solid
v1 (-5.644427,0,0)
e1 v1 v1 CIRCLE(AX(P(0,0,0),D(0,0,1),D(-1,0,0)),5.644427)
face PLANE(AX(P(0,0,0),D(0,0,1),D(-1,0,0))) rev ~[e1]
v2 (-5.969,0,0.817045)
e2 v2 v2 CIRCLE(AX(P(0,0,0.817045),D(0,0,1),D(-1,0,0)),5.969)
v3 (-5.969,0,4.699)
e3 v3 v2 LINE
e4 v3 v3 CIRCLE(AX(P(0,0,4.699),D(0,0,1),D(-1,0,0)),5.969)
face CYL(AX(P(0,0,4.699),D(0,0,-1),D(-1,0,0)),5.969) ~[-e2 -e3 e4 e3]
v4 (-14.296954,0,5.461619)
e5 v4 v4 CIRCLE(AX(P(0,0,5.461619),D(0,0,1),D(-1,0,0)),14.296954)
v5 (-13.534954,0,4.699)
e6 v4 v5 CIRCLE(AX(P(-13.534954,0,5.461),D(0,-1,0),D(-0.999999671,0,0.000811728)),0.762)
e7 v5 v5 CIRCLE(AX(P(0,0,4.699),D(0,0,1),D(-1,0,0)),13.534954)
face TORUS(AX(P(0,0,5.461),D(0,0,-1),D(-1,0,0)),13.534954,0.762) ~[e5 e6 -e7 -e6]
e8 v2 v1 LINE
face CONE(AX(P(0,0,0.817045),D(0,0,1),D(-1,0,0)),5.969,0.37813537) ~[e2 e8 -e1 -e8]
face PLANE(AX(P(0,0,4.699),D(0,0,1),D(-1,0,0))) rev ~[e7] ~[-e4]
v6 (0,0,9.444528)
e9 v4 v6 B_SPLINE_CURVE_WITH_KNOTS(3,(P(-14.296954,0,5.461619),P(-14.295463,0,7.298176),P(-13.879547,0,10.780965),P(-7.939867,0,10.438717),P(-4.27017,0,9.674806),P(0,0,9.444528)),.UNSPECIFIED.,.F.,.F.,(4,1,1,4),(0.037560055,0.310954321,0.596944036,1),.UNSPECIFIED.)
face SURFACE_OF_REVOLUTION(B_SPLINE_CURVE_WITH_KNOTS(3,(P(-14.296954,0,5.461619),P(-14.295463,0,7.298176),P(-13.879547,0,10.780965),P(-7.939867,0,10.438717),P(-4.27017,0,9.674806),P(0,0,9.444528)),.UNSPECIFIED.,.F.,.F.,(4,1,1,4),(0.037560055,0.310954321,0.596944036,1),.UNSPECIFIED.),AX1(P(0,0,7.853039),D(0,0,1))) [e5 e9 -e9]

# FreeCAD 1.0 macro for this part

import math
import FreeCAD as App
import Part
import Sketcher
from FreeCAD import Vector
Q = App.Units.Quantity

doc = App.newDocument("Part")
params = doc.addObject("Spreadsheet::Sheet", "Params")
for row, (alias, value) in enumerate([
    ("sketch1_radius", "0.03 in"),
    ("revolution_angle", "360 deg"),
], start=1):
    params.set(f"A{row}", alias)
    params.set(f"B{row}", "=" + value)
    params.setAlias(f"B{row}", alias)

body = doc.addObject("PartDesign::Body", "Body")

# Sketch on XZ plane
sketch1 = doc.addObject("Sketcher::SketchObject", "Sketch")
body.addObject(sketch1)
sketch1.AttachmentSupport = (doc.XZ_Plane, [""])
sketch1.MapMode = "FlatFace"
sketch1.addGeometry(Part.LineSegment(Vector(-5.644427, 0, 0), Vector(0, 0, 0)), False)
sketch1.addGeometry(Part.LineSegment(Vector(0, 0, 0), Vector(0, 9.444528, 0)), False)
sketch1.addGeometry(Part.BSplineCurve([Vector(-14.296954, 5.461619, 0), Vector(-14.295463, 7.298176, 0), Vector(-13.879547, 10.780965, 0), Vector(-7.939867, 10.438717, 0), Vector(-4.27017, 9.674806, 0), Vector(0, 9.444528, 0)], [4, 1, 1, 4], [0.037560055, 0.310954321, 0.596944036, 1], False, 3, [1, 1, 1, 1, 1, 1], False), False)
sketch1.addGeometry(Part.ArcOfCircle(Part.Circle(Vector(-13.534954, 5.461, 0), Vector(0, 0, 1), 0.762), math.radians(179.953491), math.radians(270)), False)
sketch1.addGeometry(Part.LineSegment(Vector(-13.534954, 4.699, 0), Vector(-5.969, 4.699, 0)), False)
sketch1.addGeometry(Part.LineSegment(Vector(-5.969, 4.699, 0), Vector(-5.969, 0.817045, 0)), False)
sketch1.addGeometry(Part.LineSegment(Vector(-5.969, 0.817045, 0), Vector(-5.644427, 0, 0)), False)
sketch1.addConstraint(Sketcher.Constraint("Block", 2))
sketch1.addConstraint(Sketcher.Constraint("Coincident", 0, 2, 1, 1))
sketch1.addConstraint(Sketcher.Constraint("Coincident", 1, 2, 2, 2))
sketch1.addConstraint(Sketcher.Constraint("Coincident", 2, 1, 3, 1))
sketch1.addConstraint(Sketcher.Constraint("Tangent", 3, 2, 4, 1))
sketch1.addConstraint(Sketcher.Constraint("Coincident", 4, 2, 5, 1))
sketch1.addConstraint(Sketcher.Constraint("Coincident", 5, 2, 6, 1))
sketch1.addConstraint(Sketcher.Constraint("Coincident", 6, 2, 0, 1))
sketch1.addConstraint(Sketcher.Constraint("Horizontal", 0))
sketch1.addConstraint(Sketcher.Constraint("Vertical", 1))
sketch1.addConstraint(Sketcher.Constraint("Horizontal", 4))
sketch1.addConstraint(Sketcher.Constraint("Vertical", 5))
sketch1.addConstraint(Sketcher.Constraint("PointOnObject", 6, 2, -1))
sketch1.addConstraint(Sketcher.Constraint("Radius", 3, Q("0.03 in")))
sketch1.addConstraint(Sketcher.Constraint("DistanceY", -1, 1, 3, 3, Q("0.215 in")))
sketch1.addConstraint(Sketcher.Constraint("DistanceX", 4, 2, -1, 1, Q("0.235 in")))
sketch1.addConstraint(Sketcher.Constraint("DistanceX", 0, 1, 0, 2, Q("5.644427 mm")))
sketch1.addConstraint(Sketcher.Constraint("DistanceY", 5, 2, 5, 1, Q("3.881955 mm")))
sketch1.setExpression("Constraints[13]", "Params.sketch1_radius")
revolution = doc.addObject("PartDesign::Revolution", "Revolution")
body.addObject(revolution)
revolution.Profile = sketch1
revolution.ReferenceAxis = (sketch1, ["V_Axis"])
revolution.setExpression("Angle", "Params.revolution_angle")

doc.recompute()
